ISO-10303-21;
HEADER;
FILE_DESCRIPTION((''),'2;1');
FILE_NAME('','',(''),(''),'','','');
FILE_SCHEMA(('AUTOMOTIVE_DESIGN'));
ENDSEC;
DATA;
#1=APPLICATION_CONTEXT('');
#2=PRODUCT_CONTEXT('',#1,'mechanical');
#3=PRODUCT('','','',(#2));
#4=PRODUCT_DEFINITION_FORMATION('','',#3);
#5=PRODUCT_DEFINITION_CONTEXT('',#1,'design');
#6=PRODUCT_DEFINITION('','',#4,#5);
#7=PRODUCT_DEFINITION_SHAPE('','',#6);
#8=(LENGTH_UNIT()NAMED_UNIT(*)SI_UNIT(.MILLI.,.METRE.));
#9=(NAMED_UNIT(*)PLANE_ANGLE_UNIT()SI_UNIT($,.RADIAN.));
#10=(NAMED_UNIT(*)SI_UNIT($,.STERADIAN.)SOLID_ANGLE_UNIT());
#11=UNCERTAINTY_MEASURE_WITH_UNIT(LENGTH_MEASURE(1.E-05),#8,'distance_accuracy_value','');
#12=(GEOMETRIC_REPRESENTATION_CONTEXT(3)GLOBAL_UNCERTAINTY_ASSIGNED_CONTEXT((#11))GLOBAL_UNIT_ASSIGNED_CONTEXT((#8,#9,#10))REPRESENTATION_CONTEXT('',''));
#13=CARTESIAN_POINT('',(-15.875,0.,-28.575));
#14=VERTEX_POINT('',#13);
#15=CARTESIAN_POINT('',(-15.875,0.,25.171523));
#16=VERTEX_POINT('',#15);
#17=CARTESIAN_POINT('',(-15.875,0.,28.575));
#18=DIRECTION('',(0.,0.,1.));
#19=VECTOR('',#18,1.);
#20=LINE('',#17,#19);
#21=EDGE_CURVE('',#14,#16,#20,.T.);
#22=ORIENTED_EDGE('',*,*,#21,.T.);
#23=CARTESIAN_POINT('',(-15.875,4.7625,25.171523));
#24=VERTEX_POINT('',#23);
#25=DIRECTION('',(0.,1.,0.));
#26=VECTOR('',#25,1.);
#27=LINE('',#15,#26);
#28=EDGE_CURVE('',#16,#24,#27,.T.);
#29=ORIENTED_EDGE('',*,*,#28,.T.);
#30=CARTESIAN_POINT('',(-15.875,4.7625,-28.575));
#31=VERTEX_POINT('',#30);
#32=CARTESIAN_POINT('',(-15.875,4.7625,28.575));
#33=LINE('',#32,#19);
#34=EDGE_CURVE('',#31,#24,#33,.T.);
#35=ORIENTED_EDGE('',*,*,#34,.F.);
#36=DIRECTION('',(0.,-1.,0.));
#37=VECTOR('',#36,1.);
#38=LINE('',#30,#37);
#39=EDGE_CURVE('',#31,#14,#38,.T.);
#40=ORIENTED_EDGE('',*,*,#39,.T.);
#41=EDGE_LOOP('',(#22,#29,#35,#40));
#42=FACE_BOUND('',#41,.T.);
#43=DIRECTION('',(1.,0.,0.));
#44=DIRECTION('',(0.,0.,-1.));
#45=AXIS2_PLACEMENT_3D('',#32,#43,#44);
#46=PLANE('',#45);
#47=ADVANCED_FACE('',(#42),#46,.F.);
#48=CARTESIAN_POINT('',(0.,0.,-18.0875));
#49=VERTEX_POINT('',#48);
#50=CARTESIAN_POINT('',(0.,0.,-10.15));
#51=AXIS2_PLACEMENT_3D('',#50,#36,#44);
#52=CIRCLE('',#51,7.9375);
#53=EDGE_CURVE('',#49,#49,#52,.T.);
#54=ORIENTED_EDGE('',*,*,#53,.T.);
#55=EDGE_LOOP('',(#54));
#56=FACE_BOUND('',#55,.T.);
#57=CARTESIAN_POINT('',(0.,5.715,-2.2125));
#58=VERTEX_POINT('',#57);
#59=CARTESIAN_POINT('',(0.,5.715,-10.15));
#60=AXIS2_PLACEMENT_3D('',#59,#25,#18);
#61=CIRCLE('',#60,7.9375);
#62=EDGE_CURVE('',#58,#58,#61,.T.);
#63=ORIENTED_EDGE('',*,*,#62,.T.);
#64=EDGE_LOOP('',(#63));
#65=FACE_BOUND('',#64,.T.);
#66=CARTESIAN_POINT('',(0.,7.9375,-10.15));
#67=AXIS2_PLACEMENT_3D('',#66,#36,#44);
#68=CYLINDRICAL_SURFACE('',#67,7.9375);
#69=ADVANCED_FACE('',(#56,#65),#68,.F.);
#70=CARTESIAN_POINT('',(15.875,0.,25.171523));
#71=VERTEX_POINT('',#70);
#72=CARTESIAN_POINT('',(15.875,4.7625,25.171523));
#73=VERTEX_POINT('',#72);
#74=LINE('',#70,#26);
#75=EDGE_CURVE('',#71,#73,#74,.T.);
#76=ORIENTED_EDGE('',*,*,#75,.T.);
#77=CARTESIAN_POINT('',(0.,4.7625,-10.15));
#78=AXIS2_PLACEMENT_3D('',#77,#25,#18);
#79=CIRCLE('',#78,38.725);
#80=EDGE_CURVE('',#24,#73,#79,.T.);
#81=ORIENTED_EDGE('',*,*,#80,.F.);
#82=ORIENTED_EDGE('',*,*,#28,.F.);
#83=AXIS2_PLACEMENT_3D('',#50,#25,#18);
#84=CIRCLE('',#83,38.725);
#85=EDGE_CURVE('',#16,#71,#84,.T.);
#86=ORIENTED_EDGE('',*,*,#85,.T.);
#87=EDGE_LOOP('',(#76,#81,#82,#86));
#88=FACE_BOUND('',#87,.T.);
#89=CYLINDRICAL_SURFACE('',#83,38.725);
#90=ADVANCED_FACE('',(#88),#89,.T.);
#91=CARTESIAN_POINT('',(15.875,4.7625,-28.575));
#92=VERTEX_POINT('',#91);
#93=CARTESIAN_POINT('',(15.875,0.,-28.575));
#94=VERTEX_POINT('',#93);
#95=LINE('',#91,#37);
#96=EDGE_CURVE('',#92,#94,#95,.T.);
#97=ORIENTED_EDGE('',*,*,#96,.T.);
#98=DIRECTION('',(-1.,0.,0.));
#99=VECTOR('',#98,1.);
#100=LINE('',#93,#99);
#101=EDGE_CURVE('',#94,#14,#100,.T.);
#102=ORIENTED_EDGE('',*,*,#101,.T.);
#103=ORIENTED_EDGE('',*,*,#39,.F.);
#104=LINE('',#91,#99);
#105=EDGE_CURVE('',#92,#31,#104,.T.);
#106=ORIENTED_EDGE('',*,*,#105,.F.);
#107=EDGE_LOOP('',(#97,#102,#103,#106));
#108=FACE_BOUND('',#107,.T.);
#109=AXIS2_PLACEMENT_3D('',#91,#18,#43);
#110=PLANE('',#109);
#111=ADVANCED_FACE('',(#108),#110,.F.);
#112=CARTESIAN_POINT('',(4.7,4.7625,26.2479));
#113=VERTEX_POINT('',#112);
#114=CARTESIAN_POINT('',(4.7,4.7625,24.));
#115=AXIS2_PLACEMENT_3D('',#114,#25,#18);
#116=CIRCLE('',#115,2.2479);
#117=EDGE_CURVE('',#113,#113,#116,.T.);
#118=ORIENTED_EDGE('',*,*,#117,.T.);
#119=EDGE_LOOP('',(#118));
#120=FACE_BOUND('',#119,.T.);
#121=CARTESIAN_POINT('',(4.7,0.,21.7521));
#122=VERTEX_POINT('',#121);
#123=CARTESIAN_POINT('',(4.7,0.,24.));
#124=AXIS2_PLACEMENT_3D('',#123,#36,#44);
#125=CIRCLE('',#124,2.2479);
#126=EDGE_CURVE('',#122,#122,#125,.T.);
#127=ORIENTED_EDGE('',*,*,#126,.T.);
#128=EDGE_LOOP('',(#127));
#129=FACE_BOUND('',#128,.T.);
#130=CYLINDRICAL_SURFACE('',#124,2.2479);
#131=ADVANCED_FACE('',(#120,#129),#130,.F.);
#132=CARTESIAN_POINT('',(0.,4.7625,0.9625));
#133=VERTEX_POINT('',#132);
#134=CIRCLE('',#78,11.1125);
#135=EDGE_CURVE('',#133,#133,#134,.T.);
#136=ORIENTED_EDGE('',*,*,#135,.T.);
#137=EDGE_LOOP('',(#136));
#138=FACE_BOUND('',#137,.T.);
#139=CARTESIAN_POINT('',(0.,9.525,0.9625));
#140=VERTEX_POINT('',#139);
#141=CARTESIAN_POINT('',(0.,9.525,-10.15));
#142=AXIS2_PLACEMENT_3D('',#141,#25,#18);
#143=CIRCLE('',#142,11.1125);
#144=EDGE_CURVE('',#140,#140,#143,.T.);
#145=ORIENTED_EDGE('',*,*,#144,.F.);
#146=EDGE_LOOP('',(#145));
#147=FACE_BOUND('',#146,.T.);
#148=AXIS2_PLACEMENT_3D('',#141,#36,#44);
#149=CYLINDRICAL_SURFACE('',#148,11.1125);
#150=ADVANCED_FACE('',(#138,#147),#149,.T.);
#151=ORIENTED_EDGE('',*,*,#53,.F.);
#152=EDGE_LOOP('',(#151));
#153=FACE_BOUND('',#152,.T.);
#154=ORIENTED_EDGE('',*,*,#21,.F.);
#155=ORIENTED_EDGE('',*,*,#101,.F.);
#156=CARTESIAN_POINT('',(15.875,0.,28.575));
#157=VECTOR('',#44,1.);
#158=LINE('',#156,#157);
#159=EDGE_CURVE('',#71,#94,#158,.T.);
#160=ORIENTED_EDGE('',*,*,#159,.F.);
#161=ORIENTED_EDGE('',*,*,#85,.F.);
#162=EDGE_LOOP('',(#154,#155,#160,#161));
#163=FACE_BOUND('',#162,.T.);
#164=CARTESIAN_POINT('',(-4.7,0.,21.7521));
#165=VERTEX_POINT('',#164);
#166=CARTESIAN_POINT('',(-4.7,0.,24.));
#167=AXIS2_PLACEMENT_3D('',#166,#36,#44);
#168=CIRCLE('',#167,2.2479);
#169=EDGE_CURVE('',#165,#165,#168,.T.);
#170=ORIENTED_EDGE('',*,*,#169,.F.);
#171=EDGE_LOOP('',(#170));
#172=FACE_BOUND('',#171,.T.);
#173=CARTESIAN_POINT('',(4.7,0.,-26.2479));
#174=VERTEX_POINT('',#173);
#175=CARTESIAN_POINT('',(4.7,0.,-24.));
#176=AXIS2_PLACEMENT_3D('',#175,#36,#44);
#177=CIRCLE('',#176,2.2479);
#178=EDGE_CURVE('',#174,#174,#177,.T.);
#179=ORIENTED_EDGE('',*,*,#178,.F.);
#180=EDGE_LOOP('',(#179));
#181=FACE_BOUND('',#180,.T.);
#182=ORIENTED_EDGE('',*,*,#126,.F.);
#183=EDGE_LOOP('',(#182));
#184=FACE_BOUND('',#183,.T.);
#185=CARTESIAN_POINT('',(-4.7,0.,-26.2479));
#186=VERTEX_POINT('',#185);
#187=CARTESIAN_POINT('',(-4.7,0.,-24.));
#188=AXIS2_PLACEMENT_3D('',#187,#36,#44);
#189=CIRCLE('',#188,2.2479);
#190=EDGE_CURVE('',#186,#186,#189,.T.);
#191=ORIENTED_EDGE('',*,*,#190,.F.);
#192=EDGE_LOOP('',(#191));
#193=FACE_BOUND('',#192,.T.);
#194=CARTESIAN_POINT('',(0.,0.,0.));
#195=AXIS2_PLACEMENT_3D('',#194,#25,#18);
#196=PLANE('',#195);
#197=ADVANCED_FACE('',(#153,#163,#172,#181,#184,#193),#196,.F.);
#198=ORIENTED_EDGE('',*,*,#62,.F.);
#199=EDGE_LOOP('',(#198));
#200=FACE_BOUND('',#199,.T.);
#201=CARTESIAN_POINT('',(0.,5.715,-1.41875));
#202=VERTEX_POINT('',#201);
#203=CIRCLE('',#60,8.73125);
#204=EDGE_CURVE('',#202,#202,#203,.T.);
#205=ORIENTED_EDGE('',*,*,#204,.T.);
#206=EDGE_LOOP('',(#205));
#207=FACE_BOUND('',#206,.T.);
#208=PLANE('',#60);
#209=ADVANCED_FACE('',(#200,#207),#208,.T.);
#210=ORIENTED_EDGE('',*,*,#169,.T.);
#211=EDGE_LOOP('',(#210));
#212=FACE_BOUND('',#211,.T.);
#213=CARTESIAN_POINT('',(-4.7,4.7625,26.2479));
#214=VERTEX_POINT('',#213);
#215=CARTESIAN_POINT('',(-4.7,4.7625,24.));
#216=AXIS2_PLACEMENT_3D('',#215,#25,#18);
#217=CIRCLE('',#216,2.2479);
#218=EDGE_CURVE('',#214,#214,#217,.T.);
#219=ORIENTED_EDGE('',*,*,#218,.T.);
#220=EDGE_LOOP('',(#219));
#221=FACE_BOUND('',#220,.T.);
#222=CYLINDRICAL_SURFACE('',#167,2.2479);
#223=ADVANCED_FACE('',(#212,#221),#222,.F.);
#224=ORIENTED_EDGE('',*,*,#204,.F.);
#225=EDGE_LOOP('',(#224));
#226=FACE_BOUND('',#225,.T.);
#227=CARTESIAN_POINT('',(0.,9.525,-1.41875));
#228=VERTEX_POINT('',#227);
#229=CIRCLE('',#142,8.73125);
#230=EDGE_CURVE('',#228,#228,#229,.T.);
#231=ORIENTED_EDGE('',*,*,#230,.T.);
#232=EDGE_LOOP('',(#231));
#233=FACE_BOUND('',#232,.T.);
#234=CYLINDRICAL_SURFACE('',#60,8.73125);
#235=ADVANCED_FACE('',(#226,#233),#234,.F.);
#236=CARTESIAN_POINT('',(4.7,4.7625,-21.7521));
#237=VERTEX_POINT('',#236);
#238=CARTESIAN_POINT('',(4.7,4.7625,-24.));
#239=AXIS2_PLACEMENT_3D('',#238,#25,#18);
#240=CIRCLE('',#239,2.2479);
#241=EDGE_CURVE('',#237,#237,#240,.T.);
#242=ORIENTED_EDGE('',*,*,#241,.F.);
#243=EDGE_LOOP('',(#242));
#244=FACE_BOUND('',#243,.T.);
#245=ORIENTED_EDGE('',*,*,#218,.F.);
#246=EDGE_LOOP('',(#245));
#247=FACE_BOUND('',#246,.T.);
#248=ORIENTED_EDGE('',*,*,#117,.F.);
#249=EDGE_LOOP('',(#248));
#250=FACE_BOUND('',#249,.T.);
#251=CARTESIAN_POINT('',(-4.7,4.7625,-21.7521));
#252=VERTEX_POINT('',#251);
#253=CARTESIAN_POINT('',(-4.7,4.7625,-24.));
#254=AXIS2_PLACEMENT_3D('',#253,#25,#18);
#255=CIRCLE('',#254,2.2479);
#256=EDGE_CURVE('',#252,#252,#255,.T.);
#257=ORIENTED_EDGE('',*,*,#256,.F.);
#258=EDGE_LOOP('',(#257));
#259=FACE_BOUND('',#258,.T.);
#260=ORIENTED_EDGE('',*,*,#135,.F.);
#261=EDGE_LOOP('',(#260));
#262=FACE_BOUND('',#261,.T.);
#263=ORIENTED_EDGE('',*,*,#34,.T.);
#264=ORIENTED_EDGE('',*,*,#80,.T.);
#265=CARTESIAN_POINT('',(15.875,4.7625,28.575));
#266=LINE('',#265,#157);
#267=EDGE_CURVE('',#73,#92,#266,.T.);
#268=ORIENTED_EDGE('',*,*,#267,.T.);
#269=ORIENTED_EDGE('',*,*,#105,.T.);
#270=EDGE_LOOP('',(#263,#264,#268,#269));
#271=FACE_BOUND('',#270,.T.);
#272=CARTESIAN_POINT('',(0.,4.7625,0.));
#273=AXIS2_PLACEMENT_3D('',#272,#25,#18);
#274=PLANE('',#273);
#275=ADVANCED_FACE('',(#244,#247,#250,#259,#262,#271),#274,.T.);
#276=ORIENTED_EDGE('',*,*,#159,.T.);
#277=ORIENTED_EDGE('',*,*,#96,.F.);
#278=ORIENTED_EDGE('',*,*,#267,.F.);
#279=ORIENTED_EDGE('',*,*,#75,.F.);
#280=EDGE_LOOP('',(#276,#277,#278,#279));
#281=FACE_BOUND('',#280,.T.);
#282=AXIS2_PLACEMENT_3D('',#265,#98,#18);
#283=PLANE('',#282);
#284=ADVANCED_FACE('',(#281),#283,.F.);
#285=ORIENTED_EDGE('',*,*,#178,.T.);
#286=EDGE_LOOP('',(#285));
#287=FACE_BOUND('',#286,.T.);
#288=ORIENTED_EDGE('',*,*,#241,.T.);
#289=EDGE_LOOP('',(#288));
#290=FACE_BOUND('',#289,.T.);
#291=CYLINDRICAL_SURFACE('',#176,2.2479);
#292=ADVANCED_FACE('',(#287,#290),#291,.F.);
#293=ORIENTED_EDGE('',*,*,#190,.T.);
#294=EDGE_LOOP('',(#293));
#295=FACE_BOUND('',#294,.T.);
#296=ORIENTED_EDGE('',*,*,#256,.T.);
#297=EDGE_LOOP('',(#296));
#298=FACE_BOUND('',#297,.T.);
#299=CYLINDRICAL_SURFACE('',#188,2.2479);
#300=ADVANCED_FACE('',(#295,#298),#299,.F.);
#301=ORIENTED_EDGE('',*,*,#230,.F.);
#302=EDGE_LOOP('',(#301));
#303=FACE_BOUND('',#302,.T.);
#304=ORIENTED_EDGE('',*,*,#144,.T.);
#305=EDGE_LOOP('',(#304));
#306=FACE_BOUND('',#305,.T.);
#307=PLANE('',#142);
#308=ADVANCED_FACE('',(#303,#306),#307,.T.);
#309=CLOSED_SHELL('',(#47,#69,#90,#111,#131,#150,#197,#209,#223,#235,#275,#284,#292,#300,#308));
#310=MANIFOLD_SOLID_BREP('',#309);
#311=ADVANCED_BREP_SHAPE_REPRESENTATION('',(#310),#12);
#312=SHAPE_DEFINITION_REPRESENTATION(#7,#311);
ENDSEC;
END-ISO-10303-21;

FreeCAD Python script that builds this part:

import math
import FreeCAD as App
import Part
import Sketcher
from FreeCAD import Vector
Q = App.Units.Quantity

doc = App.newDocument("Part")
body = doc.addObject("PartDesign::Body", "Body")

sketch1 = doc.addObject("Sketcher::SketchObject", "Sketch")
body.addObject(sketch1)
sketch1.AttachmentSupport = (doc.XZ_Plane, [""])
sketch1.MapMode = "FlatFace"
sketch1.addGeometry(Part.LineSegment(Vector(-16, -29, 0), Vector(-16, 29, 0)), False)
sketch1.addGeometry(Part.LineSegment(Vector(-16, 29, 0), Vector(16, 29, 0)), False)
sketch1.addGeometry(Part.LineSegment(Vector(16, 29, 0), Vector(16, -29, 0)), False)
sketch1.addGeometry(Part.LineSegment(Vector(16, -29, 0), Vector(-16, -29, 0)), False)
sketch1.addConstraint(Sketcher.Constraint("Coincident", 0, 2, 1, 1))
sketch1.addConstraint(Sketcher.Constraint("Coincident", 1, 2, 2, 1))
sketch1.addConstraint(Sketcher.Constraint("Coincident", 2, 2, 3, 1))
sketch1.addConstraint(Sketcher.Constraint("Coincident", 3, 2, 0, 1))
sketch1.addConstraint(Sketcher.Constraint("Vertical", 0))
sketch1.addConstraint(Sketcher.Constraint("Horizontal", 1))
sketch1.addConstraint(Sketcher.Constraint("Vertical", 2))
sketch1.addConstraint(Sketcher.Constraint("Horizontal", 3))
sketch1.addConstraint(Sketcher.Constraint("Symmetric", 0, 2, 2, 2, -1, 1))
sketch1.addConstraint(Sketcher.Constraint("DistanceX", 1, 1, 1, 2, Q("1.25 in")))
sketch1.addConstraint(Sketcher.Constraint("DistanceY", 0, 1, 0, 2, Q("2.25 in")))
pad1 = doc.addObject("PartDesign::Pad", "Pad")
body.addObject(pad1)
pad1.Profile = sketch1
pad1.Length = Q("0.1875 in")
pad1.Reversed = True

sketch2 = doc.addObject("Sketcher::SketchObject", "Sketch001")
body.addObject(sketch2)
sketch2.AttachmentSupport = (doc.XZ_Plane, [""])
sketch2.MapMode = "FlatFace"
sketch2.AttachmentOffset = App.Placement(Vector(0, 0, -0.1875 * 25.4), App.Rotation())
sketch2.addGeometry(Part.Circle(Vector(0, -10, 0), Vector(0, 0, 1), 11), False)
sketch2.addConstraint(Sketcher.Constraint("PointOnObject", 0, 3, -2))
sketch2.addConstraint(Sketcher.Constraint("Diameter", 0, Q("0.875 in")))
sketch2.addConstraint(Sketcher.Constraint("DistanceY", 0, 3, -1, 1, 10.15))
pad2 = doc.addObject("PartDesign::Pad", "Pad001")
body.addObject(pad2)
pad2.Profile = sketch2
pad2.Length = Q("0.1875 in")
pad2.Reversed = True

sketch3 = doc.addObject("Sketcher::SketchObject", "Sketch002")
body.addObject(sketch3)
sketch3.AttachmentSupport = (doc.XZ_Plane, [""])
sketch3.MapMode = "FlatFace"
sketch3.AttachmentOffset = App.Placement(Vector(0, 0, -0.375 * 25.4), App.Rotation())
sketch3.addGeometry(Part.Circle(Vector(0, -10, 0), Vector(0, 0, 1), 9), False)
sketch3.addConstraint(Sketcher.Constraint("PointOnObject", 0, 3, -2))
sketch3.addConstraint(Sketcher.Constraint("Diameter", 0, Q("0.6875 in")))
sketch3.addConstraint(Sketcher.Constraint("DistanceY", 0, 3, -1, 1, 10.15))
pocket1 = doc.addObject("PartDesign::Pocket", "Pocket")
body.addObject(pocket1)
pocket1.Profile = sketch3
pocket1.Length = Q("0.15 in")
pocket1.Reversed = True

sketch4 = doc.addObject("Sketcher::SketchObject", "Sketch003")
body.addObject(sketch4)
sketch4.AttachmentSupport = (doc.XZ_Plane, [""])
sketch4.MapMode = "FlatFace"
sketch4.addGeometry(Part.Circle(Vector(0, -10, 0), Vector(0, 0, 1), 8), False)
sketch4.addConstraint(Sketcher.Constraint("PointOnObject", 0, 3, -2))
sketch4.addConstraint(Sketcher.Constraint("Diameter", 0, Q("0.625 in")))
sketch4.addConstraint(Sketcher.Constraint("DistanceY", 0, 3, -1, 1, 10.15))
pocket2 = doc.addObject("PartDesign::Pocket", "Pocket001")
body.addObject(pocket2)
pocket2.Profile = sketch4
pocket2.Length = Q("0.3125 in")

sketch5 = doc.addObject("Sketcher::SketchObject", "Sketch004")
body.addObject(sketch5)
sketch5.AttachmentSupport = (doc.XZ_Plane, [""])
sketch5.MapMode = "FlatFace"
sketch5.addGeometry(Part.Circle(Vector(4.7, -24, 0), Vector(0, 0, 1), 2.2), False)
sketch5.addGeometry(Part.Circle(Vector(-4.7, 24, 0), Vector(0, 0, 1), 2.2), False)
sketch5.addGeometry(Part.Circle(Vector(-4.7, -24, 0), Vector(0, 0, 1), 2.2), False)
sketch5.addGeometry(Part.Circle(Vector(4.7, 24, 0), Vector(0, 0, 1), 2.2), False)
sketch5.addConstraint(Sketcher.Constraint("Equal", 0, 1))
sketch5.addConstraint(Sketcher.Constraint("Equal", 1, 2))
sketch5.addConstraint(Sketcher.Constraint("Equal", 2, 3))
sketch5.addConstraint(Sketcher.Constraint("Symmetric", 0, 3, 1, 3, -1, 1))
sketch5.addConstraint(Sketcher.Constraint("Symmetric", 2, 3, 3, 3, -1, 1))
sketch5.addConstraint(Sketcher.Constraint("Symmetric", 0, 3, 2, 3, -2))
sketch5.addConstraint(Sketcher.Constraint("Diameter", 0, Q("0.177 in")))
sketch5.addConstraint(Sketcher.Constraint("DistanceX", -1, 1, 0, 3, 4.7))
sketch5.addConstraint(Sketcher.Constraint("DistanceY", 0, 3, -1, 1, 24.0))
doc.recompute()
hole = doc.addObject("PartDesign::Hole", "Hole")
body.addObject(hole)
hole.Profile = sketch5
hole.ThreadType = "None"
hole.Diameter = Q("0.177 in")
hole.DepthType = "ThroughAll"

sketch6 = doc.addObject("Sketcher::SketchObject", "Sketch005")
body.addObject(sketch6)
sketch6.AttachmentSupport = (doc.XZ_Plane, [""])
sketch6.MapMode = "FlatFace"
sketch6.AttachmentOffset = App.Placement(Vector(0, 0, -0.1875 * 25.4), App.Rotation())
sketch6.addGeometry(Part.ArcOfCircle(Part.Circle(Vector(0, -10.2, 0), Vector(0, 0, 1), 38.7), math.radians(66), math.radians(90)), False)
sketch6.addGeometry(Part.LineSegment(Vector(0, 28.6, 0), Vector(15.9, 28.6, 0)), False)
sketch6.addGeometry(Part.LineSegment(Vector(15.9, 28.6, 0), Vector(15.9, 25.2, 0)), False)
sketch6.addGeometry(Part.ArcOfCircle(Part.Circle(Vector(0, -10.2, 0), Vector(0, 0, 1), 38.7), math.radians(90), math.radians(114)), False)
sketch6.addGeometry(Part.LineSegment(Vector(-15.9, 25.2, 0), Vector(-15.9, 28.6, 0)), False)
sketch6.addGeometry(Part.LineSegment(Vector(-15.9, 28.6, 0), Vector(0, 28.6, 0)), False)
sketch6.addConstraint(Sketcher.Constraint("Tangent", 0, 2, 1, 1))
sketch6.addConstraint(Sketcher.Constraint("Coincident", 1, 2, 2, 1))
sketch6.addConstraint(Sketcher.Constraint("Coincident", 2, 2, 0, 1))
sketch6.addConstraint(Sketcher.Constraint("Coincident", 3, 2, 4, 1))
sketch6.addConstraint(Sketcher.Constraint("Coincident", 4, 2, 5, 1))
sketch6.addConstraint(Sketcher.Constraint("Tangent", 5, 2, 3, 1))
sketch6.addConstraint(Sketcher.Constraint("Horizontal", 1))
sketch6.addConstraint(Sketcher.Constraint("Vertical", 2))
sketch6.addConstraint(Sketcher.Constraint("Vertical", 4))
sketch6.addConstraint(Sketcher.Constraint("Horizontal", 5))
sketch6.addConstraint(Sketcher.Constraint("Coincident", 3, 3, 0, 3))
sketch6.addConstraint(Sketcher.Constraint("Equal", 0, 3))
sketch6.addConstraint(Sketcher.Constraint("Symmetric", 2, 2, 3, 2, -2))
sketch6.addConstraint(Sketcher.Constraint("DistanceX", 1, 1, 1, 2, Q("0.625 in")))
sketch6.addConstraint(Sketcher.Constraint("Radius", 0, 38.725))
sketch6.addConstraint(Sketcher.Constraint("DistanceY", -1, 1, 0, 2, Q("1.125 in")))
pocket3 = doc.addObject("PartDesign::Pocket", "Pocket002")
body.addObject(pocket3)
pocket3.Profile = sketch6
pocket3.Type = "ThroughAll"
pocket3.Reversed = True

doc.recompute()
